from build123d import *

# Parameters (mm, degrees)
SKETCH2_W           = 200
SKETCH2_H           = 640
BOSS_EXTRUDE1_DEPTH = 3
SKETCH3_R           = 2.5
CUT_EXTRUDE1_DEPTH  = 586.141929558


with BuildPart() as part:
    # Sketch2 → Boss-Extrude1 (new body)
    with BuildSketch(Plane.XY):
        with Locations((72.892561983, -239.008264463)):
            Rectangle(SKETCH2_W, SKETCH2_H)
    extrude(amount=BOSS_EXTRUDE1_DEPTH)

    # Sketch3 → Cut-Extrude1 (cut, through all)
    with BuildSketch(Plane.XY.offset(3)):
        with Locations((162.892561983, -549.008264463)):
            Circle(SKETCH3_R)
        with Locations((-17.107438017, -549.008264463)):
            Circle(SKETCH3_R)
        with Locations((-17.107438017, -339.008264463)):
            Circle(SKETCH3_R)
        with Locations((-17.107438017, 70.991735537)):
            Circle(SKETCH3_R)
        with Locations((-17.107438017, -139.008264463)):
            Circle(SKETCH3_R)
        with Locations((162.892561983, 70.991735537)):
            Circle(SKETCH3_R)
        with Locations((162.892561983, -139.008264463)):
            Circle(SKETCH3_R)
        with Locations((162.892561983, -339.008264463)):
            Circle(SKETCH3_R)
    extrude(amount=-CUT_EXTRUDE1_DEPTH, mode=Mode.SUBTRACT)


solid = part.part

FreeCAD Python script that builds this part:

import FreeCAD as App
import Part
import Sketcher

V = App.Vector

doc = App.newDocument("Part")
params = doc.addObject("Spreadsheet::Sheet", "Params")
for row, (alias, value) in enumerate([
    ("sketch1_width", "200 mm"),
    ("sketch1_height", "640 mm"),
    ("pad1_length", "3 mm"),
    ("sketch2_diameter", "5 mm"),
], start=1):
    params.set(f"A{row}", alias)
    params.set(f"B{row}", "=" + value)
    params.setAlias(f"B{row}", alias)

body = doc.addObject("PartDesign::Body", "Body")

# Sketch on XY plane
sketch1 = doc.addObject("Sketcher::SketchObject", "Sketch")
body.addObject(sketch1)
sketch1.AttachmentSupport = (doc.XY_Plane, [""])
sketch1.MapMode = "FlatFace"
sketch1.addGeometry(Part.LineSegment(V(-27.107438, 80.991736, 0), V(-27.107438, -559.008264, 0)), False)
sketch1.addGeometry(Part.LineSegment(V(-27.107438, -559.008264, 0), V(172.892562, -559.008264, 0)), False)
sketch1.addGeometry(Part.LineSegment(V(172.892562, -559.008264, 0), V(172.892562, 80.991736, 0)), False)
sketch1.addGeometry(Part.LineSegment(V(172.892562, 80.991736, 0), V(-27.107438, 80.991736, 0)), False)
sketch1.addConstraint(Sketcher.Constraint("Coincident", 0, 2, 1, 1))
sketch1.addConstraint(Sketcher.Constraint("Coincident", 1, 2, 2, 1))
sketch1.addConstraint(Sketcher.Constraint("Coincident", 2, 2, 3, 1))
sketch1.addConstraint(Sketcher.Constraint("Coincident", 3, 2, 0, 1))
sketch1.addConstraint(Sketcher.Constraint("Vertical", 0))
sketch1.addConstraint(Sketcher.Constraint("Horizontal", 1))
sketch1.addConstraint(Sketcher.Constraint("Vertical", 2))
sketch1.addConstraint(Sketcher.Constraint("Horizontal", 3))
sketch1.addConstraint(Sketcher.Constraint("DistanceX", 1, 1, 1, 2, 200.0))
sketch1.addConstraint(Sketcher.Constraint("DistanceY", 0, 2, 0, 1, 640.0))
sketch1.addConstraint(Sketcher.Constraint("DistanceX", 0, 2, -1, 1, 27.107438))
sketch1.addConstraint(Sketcher.Constraint("DistanceY", 0, 2, -1, 1, 559.008264))
sketch1.setExpression("Constraints[8]", "Params.sketch1_width")
sketch1.setExpression("Constraints[9]", "Params.sketch1_height")
pad1 = doc.addObject("PartDesign::Pad", "Pad")
body.addObject(pad1)
pad1.Profile = sketch1
pad1.setExpression("Length", "Params.pad1_length")

# Sketch on XY plane
sketch2 = doc.addObject("Sketcher::SketchObject", "Sketch001")
body.addObject(sketch2)
sketch2.AttachmentSupport = (doc.XY_Plane, [""])
sketch2.MapMode = "FlatFace"
sketch2.AttachmentOffset = App.Placement(V(0, 0, 3), App.Rotation())
sketch2.addGeometry(Part.Circle(V(162.892562, -549.008264, 0), V(0, 0, 1), 2.5), False)
sketch2.addGeometry(Part.Circle(V(-17.107438, -549.008264, 0), V(0, 0, 1), 2.5), False)
sketch2.addGeometry(Part.Circle(V(-17.107438, -339.008264, 0), V(0, 0, 1), 2.5), False)
sketch2.addGeometry(Part.Circle(V(-17.107438, 70.991736, 0), V(0, 0, 1), 2.5), False)
sketch2.addGeometry(Part.Circle(V(-17.107438, -139.008264, 0), V(0, 0, 1), 2.5), False)
sketch2.addGeometry(Part.Circle(V(162.892562, 70.991736, 0), V(0, 0, 1), 2.5), False)
sketch2.addGeometry(Part.Circle(V(162.892562, -139.008264, 0), V(0, 0, 1), 2.5), False)
sketch2.addGeometry(Part.Circle(V(162.892562, -339.008264, 0), V(0, 0, 1), 2.5), False)
sketch2.addConstraint(Sketcher.Constraint("Equal", 0, 1))
sketch2.addConstraint(Sketcher.Constraint("Equal", 1, 2))
sketch2.addConstraint(Sketcher.Constraint("Equal", 2, 3))
sketch2.addConstraint(Sketcher.Constraint("Equal", 3, 4))
sketch2.addConstraint(Sketcher.Constraint("Equal", 4, 5))
sketch2.addConstraint(Sketcher.Constraint("Equal", 5, 6))
sketch2.addConstraint(Sketcher.Constraint("Equal", 6, 7))
sketch2.addConstraint(Sketcher.Constraint("Horizontal", 0, 3, 1, 3))
sketch2.addConstraint(Sketcher.Constraint("Horizontal", 3, 3, 5, 3))
sketch2.addConstraint(Sketcher.Constraint("Horizontal", 4, 3, 6, 3))
sketch2.addConstraint(Sketcher.Constraint("Horizontal", 2, 3, 7, 3))
sketch2.addConstraint(Sketcher.Constraint("Vertical", 1, 3, 2, 3))
sketch2.addConstraint(Sketcher.Constraint("Vertical", 2, 3, 3, 3))
sketch2.addConstraint(Sketcher.Constraint("Vertical", 3, 3, 4, 3))
sketch2.addConstraint(Sketcher.Constraint("Vertical", 0, 3, 5, 3))
sketch2.addConstraint(Sketcher.Constraint("Vertical", 5, 3, 6, 3))
sketch2.addConstraint(Sketcher.Constraint("Vertical", 6, 3, 7, 3))
sketch2.addConstraint(Sketcher.Constraint("Diameter", 0, 5.0))
sketch2.addConstraint(Sketcher.Constraint("DistanceX", 1, 3, 0, 3, 180.0))
sketch2.addConstraint(Sketcher.Constraint("DistanceY", 1, 3, 2, 3, 210.0))
sketch2.addConstraint(Sketcher.Constraint("DistanceY", 2, 3, 3, 3, 410.0))
sketch2.addConstraint(Sketcher.Constraint("DistanceY", 2, 3, 4, 3, 200.0))
sketch2.addConstraint(Sketcher.Constraint("DistanceX", -1, 1, 0, 3, 162.892562))
sketch2.addConstraint(Sketcher.Constraint("DistanceY", 0, 3, -1, 1, 549.008264))
sketch2.setExpression("Constraints[17]", "Params.sketch2_diameter")
pocket1 = doc.addObject("PartDesign::Pocket", "Pocket")
body.addObject(pocket1)
pocket1.Profile = sketch2
pocket1.Type = "ThroughAll"

doc.recompute()
